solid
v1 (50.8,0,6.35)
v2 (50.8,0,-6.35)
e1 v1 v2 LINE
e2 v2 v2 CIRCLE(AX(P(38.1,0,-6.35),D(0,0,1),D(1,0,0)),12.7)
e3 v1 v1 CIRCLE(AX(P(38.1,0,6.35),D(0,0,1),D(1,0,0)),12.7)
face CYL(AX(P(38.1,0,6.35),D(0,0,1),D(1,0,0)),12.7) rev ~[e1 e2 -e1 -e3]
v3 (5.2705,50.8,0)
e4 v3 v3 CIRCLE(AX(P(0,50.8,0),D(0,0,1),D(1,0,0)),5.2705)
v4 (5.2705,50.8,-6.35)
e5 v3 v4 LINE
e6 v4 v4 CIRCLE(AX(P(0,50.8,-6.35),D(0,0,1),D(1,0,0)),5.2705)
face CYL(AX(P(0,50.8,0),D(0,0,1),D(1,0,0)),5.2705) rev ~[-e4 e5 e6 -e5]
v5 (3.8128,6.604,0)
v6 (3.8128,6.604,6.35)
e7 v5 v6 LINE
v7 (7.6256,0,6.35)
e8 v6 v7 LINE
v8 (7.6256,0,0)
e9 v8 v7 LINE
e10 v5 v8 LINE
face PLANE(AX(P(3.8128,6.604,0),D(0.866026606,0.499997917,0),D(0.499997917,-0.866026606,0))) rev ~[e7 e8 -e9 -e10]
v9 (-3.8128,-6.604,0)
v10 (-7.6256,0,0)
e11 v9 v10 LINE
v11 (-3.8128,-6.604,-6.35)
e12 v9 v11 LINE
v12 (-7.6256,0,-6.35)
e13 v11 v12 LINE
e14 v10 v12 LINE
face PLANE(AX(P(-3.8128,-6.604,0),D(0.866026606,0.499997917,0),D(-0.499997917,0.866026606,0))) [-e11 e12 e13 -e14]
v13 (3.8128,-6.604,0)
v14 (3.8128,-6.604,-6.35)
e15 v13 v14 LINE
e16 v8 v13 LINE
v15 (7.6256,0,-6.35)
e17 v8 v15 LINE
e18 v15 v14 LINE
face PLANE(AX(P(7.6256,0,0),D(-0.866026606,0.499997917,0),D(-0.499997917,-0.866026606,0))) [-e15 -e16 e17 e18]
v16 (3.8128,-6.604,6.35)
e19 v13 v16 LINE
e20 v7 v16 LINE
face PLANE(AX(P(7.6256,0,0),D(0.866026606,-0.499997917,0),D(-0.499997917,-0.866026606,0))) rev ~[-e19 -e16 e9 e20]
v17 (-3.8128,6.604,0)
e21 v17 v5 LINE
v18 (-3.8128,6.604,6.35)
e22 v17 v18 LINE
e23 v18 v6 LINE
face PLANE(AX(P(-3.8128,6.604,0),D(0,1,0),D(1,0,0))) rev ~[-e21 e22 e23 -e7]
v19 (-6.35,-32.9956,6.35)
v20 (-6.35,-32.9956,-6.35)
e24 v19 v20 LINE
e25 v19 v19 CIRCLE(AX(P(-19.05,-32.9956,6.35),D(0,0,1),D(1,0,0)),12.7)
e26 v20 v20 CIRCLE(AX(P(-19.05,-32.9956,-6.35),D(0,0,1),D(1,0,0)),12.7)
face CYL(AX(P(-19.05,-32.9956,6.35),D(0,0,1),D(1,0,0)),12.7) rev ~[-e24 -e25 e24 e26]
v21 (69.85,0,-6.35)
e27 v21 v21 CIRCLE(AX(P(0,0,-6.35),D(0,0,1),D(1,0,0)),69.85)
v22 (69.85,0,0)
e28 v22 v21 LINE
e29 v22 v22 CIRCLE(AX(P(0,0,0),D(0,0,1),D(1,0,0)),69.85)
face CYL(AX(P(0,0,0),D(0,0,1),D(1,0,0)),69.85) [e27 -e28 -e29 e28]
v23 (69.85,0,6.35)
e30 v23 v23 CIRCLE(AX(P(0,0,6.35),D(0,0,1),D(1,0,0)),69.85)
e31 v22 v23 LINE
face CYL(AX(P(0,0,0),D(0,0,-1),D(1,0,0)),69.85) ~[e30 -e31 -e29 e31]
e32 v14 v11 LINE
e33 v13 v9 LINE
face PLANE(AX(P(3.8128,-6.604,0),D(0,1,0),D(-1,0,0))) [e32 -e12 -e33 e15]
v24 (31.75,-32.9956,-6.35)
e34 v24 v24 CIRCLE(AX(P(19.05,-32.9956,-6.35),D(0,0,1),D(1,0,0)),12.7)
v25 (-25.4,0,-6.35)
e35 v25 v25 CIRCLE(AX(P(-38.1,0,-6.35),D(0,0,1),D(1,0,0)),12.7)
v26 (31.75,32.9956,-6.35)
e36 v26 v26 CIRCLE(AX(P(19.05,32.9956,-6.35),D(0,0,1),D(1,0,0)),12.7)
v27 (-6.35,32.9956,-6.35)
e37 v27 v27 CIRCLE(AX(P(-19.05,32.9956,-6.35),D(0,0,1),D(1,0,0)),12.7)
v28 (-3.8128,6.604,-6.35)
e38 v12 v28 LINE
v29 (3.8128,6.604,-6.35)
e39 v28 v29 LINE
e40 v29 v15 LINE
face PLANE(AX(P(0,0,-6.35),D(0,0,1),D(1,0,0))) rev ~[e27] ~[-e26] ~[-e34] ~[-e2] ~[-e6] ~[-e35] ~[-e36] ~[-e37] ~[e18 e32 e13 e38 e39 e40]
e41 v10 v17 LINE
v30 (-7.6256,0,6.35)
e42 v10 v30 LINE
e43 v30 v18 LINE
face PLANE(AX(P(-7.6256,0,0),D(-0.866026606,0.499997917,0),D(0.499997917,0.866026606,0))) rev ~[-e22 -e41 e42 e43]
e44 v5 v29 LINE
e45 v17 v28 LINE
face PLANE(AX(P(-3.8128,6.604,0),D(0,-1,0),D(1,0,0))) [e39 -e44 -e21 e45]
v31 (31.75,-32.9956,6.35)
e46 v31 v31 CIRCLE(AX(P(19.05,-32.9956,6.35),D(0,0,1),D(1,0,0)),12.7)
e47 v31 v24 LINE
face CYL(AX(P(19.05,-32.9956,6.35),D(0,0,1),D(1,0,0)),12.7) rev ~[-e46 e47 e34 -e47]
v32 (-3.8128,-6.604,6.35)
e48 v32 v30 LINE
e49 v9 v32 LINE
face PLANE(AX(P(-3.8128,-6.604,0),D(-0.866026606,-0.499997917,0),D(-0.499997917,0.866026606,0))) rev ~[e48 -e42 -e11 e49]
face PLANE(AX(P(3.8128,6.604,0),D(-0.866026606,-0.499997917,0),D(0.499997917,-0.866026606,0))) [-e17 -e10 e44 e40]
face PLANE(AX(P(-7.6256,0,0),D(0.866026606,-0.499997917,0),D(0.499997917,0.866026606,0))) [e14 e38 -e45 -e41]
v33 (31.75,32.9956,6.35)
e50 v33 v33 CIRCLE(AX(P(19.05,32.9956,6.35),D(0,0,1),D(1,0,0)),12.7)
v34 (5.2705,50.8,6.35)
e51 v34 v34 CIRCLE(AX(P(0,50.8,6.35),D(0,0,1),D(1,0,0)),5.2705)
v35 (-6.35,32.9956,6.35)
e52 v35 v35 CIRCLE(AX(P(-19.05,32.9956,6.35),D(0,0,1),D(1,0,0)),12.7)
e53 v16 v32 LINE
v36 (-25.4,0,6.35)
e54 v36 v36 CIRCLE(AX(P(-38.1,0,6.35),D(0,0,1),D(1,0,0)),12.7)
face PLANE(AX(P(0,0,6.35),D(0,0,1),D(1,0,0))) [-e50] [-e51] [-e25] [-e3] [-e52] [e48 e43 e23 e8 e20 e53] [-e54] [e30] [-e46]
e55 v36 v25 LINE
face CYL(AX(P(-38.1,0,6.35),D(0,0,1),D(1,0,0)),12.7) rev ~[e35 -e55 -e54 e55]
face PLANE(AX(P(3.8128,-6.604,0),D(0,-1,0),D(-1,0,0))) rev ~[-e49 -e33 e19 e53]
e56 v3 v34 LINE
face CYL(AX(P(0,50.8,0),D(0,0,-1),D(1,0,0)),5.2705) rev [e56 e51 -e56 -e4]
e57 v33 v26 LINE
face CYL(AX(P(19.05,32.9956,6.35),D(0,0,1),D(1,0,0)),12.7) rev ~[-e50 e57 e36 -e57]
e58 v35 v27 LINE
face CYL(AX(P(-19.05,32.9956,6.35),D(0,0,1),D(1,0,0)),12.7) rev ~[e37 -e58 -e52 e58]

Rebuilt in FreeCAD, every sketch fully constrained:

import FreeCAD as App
import Part
import Sketcher

V = App.Vector
Q = App.Units.Quantity


def add_polygon(sketch, points):
    """Adds a closed chain of lines whose ends are joined by coincident constraints."""
    first, n = sketch.GeometryCount, len(points)
    for a, b in zip(points, points[1:] + points[:1]):
        sketch.addGeometry(Part.LineSegment(App.Vector(*a, 0), App.Vector(*b, 0)), False)
    for i in range(n):
        sketch.addConstraint(Sketcher.Constraint("Coincident", first + i, 2, first + (i + 1) % n, 1))

doc = App.newDocument("Part")
params = doc.addObject("Spreadsheet::Sheet", "Params")
for row, (alias, value) in enumerate([
    ("sketch1_diameter", "5.5 in"),
    ("sketch1_diameter2", "0.415 in"),
    ("pad1_length", "0.5 in"),
    ("sketch2_diameter", "1 in"),
], start=1):
    params.set(f"A{row}", alias)
    params.set(f"B{row}", "=" + value)
    params.setAlias(f"B{row}", alias)

body = doc.addObject("PartDesign::Body", "Body")

sketch1 = body.newObject("Sketcher::SketchObject", "Sketch")
sketch1.AttachmentSupport = (doc.getObject("XY_Plane"), [""])
sketch1.MapMode = "FlatFace"
sketch1.addGeometry(Part.Circle(V(0, 0, 0), V(0, 0, 1), 69.85), False)
add_polygon(sketch1, [(3.8128, 6.604), (7.6256, 0), (3.8128, -6.604), (-3.8128, -6.604), (-7.6256, 0), (-3.8128, 6.604)])
sketch1.addGeometry(Part.Circle(V(0, 50.8, 0), V(0, 0, 1), 5.2705), False)
sketch1.addConstraint([
    Sketcher.Constraint("Horizontal", 3),
    Sketcher.Constraint("Horizontal", 6),
    Sketcher.Constraint("Coincident", 0, 3, -1, 1),
    Sketcher.Constraint("Symmetric", 1, 2, 4, 2, -1, 1),
    Sketcher.Constraint("Symmetric", 2, 2, 5, 2, -1, 1),
    Sketcher.Constraint("PointOnObject", 7, 3, -2),
    Sketcher.Constraint("PointOnObject", 1, 2, -1),
    Sketcher.Constraint("Parallel", 1, 4),
    Sketcher.Constraint("Vertical", 3, 2, 5, 2),
    Sketcher.Constraint("Diameter", 0, Q("5.5 in")),
    Sketcher.Constraint("Diameter", 7, Q("0.415 in")),
    Sketcher.Constraint("DistanceY", -1, 1, 7, 3, Q("2 in")),
    Sketcher.Constraint("DistanceY", 3, 2, 5, 2, Q("0.52 in")),
    Sketcher.Constraint("Angle", 1, Q("-60.0001 deg")),
    Sketcher.Constraint("DistanceX", 3, 2, 3, 1, 7.6256),
])
sketch1.setExpression("Constraints[15]", "Params.sketch1_diameter")
sketch1.setExpression("Constraints[16]", "Params.sketch1_diameter2")
pad1 = body.newObject("PartDesign::Pad", "Pad")
pad1.Profile = sketch1
pad1.setExpression("Length", "Params.pad1_length")
pad1.Midplane = True

sketch2 = body.newObject("Sketcher::SketchObject", "Sketch001")
sketch2.AttachmentSupport = (doc.getObject("XY_Plane"), [""])
sketch2.MapMode = "FlatFace"
sketch2.AttachmentOffset = App.Placement(V(0, 0, 0.25 * 25.4), App.Rotation())
sketch2.addGeometry([
    Part.Circle(V(-38.1, 0, 0), V(0, 0, 1), 12.7),
    Part.Circle(V(-19.05, -32.9956, 0), V(0, 0, 1), 12.7),
    Part.Circle(V(19.05, -32.9956, 0), V(0, 0, 1), 12.7),
    Part.Circle(V(38.1, 0, 0), V(0, 0, 1), 12.7),
    Part.Circle(V(19.05, 32.9956, 0), V(0, 0, 1), 12.7),
    Part.Circle(V(-19.05, 32.9956, 0), V(0, 0, 1), 12.7),
], False)
sketch2.addConstraint([
    Sketcher.Constraint("Equal", 0, 1),
    Sketcher.Constraint("Equal", 1, 2),
    Sketcher.Constraint("Equal", 2, 3),
    Sketcher.Constraint("Equal", 3, 4),
    Sketcher.Constraint("Equal", 4, 5),
    Sketcher.Constraint("Symmetric", 0, 3, 3, 3, -1, 1),
    Sketcher.Constraint("Symmetric", 1, 3, 4, 3, -1, 1),
    Sketcher.Constraint("Symmetric", 2, 3, 5, 3, -1, 1),
    Sketcher.Constraint("Symmetric", 1, 3, 2, 3, -2),
    Sketcher.Constraint("PointOnObject", 0, 3, -1),
    Sketcher.Constraint("Diameter", 0, Q("1 in")),
    Sketcher.Constraint("DistanceX", 0, 3, -1, 1, Q("1.5 in")),
    Sketcher.Constraint("DistanceX", 1, 3, 2, 3, Q("1.5 in")),
    Sketcher.Constraint("DistanceY", 1, 3, -1, 1, 32.9956),
])
sketch2.setExpression("Constraints[10]", "Params.sketch2_diameter")
pocket1 = body.newObject("PartDesign::Pocket", "Pocket")
pocket1.Profile = sketch2
pocket1.Type = "ThroughAll"

doc.recompute()
